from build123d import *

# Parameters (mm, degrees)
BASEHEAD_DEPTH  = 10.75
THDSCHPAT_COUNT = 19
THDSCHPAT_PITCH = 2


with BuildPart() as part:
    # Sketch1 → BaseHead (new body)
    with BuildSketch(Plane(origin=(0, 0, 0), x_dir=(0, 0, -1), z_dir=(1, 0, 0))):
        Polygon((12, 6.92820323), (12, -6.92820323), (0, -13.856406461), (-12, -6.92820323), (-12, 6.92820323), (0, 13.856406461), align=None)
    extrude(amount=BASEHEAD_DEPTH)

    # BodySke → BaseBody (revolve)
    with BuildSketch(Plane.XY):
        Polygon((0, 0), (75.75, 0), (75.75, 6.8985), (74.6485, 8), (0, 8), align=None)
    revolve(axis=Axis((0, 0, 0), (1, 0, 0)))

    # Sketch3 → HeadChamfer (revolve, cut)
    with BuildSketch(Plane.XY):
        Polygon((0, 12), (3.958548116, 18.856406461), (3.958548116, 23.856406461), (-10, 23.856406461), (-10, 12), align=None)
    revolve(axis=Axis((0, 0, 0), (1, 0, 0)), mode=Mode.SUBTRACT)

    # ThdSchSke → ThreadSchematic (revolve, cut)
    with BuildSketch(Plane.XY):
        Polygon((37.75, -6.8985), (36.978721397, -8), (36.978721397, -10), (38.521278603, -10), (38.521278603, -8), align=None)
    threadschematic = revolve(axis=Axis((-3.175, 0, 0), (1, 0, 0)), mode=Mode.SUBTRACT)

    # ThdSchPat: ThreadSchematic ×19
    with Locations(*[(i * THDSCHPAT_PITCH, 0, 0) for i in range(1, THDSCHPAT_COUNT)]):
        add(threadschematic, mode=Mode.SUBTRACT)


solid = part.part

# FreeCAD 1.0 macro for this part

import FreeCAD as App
import Part
import Sketcher
Q = App.Units.Quantity

doc = App.newDocument("Part")
body = doc.addObject("PartDesign::Body", "Body")

# Sketch on YZ plane
sketch1 = body.newObject("Sketcher::SketchObject", "Sketch")
sketch1.AttachmentSupport = (doc.getObject("YZ_Plane"), [""])
sketch1.MapMode = "FlatFace"
sketch1.addGeometry([
    Part.LineSegment(App.Vector(-7, -12, 0), App.Vector(7, -12, 0)),  # 0
    Part.LineSegment(App.Vector(7, -12, 0), App.Vector(14, 0, 0)),  # 1
    Part.LineSegment(App.Vector(14, 0, 0), App.Vector(7, 12, 0)),  # 2
    Part.LineSegment(App.Vector(7, 12, 0), App.Vector(-7, 12, 0)),  # 3
    Part.LineSegment(App.Vector(-7, 12, 0), App.Vector(-14, 0, 0)),  # 4
    Part.LineSegment(App.Vector(-14, 0, 0), App.Vector(-7, -12, 0)),  # 5
], False)
sketch1.addConstraint([
    Sketcher.Constraint("Coincident", 0, 2, 1, 1),
    Sketcher.Constraint("Coincident", 1, 2, 2, 1),
    Sketcher.Constraint("Coincident", 2, 2, 3, 1),
    Sketcher.Constraint("Coincident", 3, 2, 4, 1),
    Sketcher.Constraint("Coincident", 4, 2, 5, 1),
    Sketcher.Constraint("Coincident", 5, 2, 0, 1),
    Sketcher.Constraint("Horizontal", 0),
    Sketcher.Constraint("Horizontal", 3),
    Sketcher.Constraint("Symmetric", 0, 2, 3, 2, -1, 1),
    Sketcher.Constraint("Symmetric", 1, 2, 4, 2, -1, 1),
    Sketcher.Constraint("PointOnObject", 1, 2, -1),
    Sketcher.Constraint("Parallel", 2, 5),
    Sketcher.Constraint("Vertical", 0, 2, 2, 2),
    Sketcher.Constraint("Angle", 1, Q("60 deg")),
    Sketcher.Constraint("DistanceY", 0, 2, -1, 1, Q("12 mm")),
    Sketcher.Constraint("DistanceX", 0, 1, 0, 2, Q("13.856406 mm")),
])
pad1 = body.newObject("PartDesign::Pad", "Pad")
pad1.Profile = sketch1
pad1.Length = 10.75

# Sketch on XY plane
sketch2 = body.newObject("Sketcher::SketchObject", "Sketch001")
sketch2.AttachmentSupport = (doc.getObject("XY_Plane"), [""])
sketch2.MapMode = "FlatFace"
sketch2.addGeometry([
    Part.LineSegment(App.Vector(0, 0, 0), App.Vector(75.8, 0, 0)),  # 0
    Part.LineSegment(App.Vector(75.8, 0, 0), App.Vector(75.8, 6.9, 0)),  # 1
    Part.LineSegment(App.Vector(75.8, 6.9, 0), App.Vector(74.6, 8, 0)),  # 2
    Part.LineSegment(App.Vector(74.6, 8, 0), App.Vector(0, 8, 0)),  # 3
    Part.LineSegment(App.Vector(0, 8, 0), App.Vector(0, 0, 0)),  # 4
], False)
sketch2.addConstraint([
    Sketcher.Constraint("Coincident", 0, 2, 1, 1),
    Sketcher.Constraint("Coincident", 1, 2, 2, 1),
    Sketcher.Constraint("Coincident", 2, 2, 3, 1),
    Sketcher.Constraint("Coincident", 3, 2, 4, 1),
    Sketcher.Constraint("Coincident", 4, 2, 0, 1),
    Sketcher.Constraint("Horizontal", 0),
    Sketcher.Constraint("Vertical", 1),
    Sketcher.Constraint("Horizontal", 3),
    Sketcher.Constraint("Vertical", 4),
    Sketcher.Constraint("Coincident", 4, 2, -1, 1),
    Sketcher.Constraint("DistanceY", 4, 2, 4, 1, Q("8 mm")),
    Sketcher.Constraint("Angle", 2, Q("135 deg")),
    Sketcher.Constraint("DistanceX", 0, 1, 0, 2, Q("75.75 mm")),
    Sketcher.Constraint("DistanceX", 3, 2, 3, 1, Q("74.6485 mm")),
])
revolution = body.newObject("PartDesign::Revolution", "Revolution")
revolution.Profile = sketch2
revolution.ReferenceAxis = (sketch2, ["H_Axis"])
revolution.Angle = 360

# Sketch on XY plane
sketch3 = body.newObject("Sketcher::SketchObject", "Sketch002")
sketch3.AttachmentSupport = (doc.getObject("XY_Plane"), [""])
sketch3.MapMode = "FlatFace"
sketch3.addGeometry([
    Part.LineSegment(App.Vector(0, 12, 0), App.Vector(4, 19, 0)),  # 0
    Part.LineSegment(App.Vector(4, 19, 0), App.Vector(4, 24, 0)),  # 1
    Part.LineSegment(App.Vector(4, 24, 0), App.Vector(-10, 24, 0)),  # 2
    Part.LineSegment(App.Vector(-10, 24, 0), App.Vector(-10, 12, 0)),  # 3
    Part.LineSegment(App.Vector(-10, 12, 0), App.Vector(0, 12, 0)),  # 4
], False)
sketch3.addConstraint([
    Sketcher.Constraint("Coincident", 0, 2, 1, 1),
    Sketcher.Constraint("Coincident", 1, 2, 2, 1),
    Sketcher.Constraint("Coincident", 2, 2, 3, 1),
    Sketcher.Constraint("Coincident", 3, 2, 4, 1),
    Sketcher.Constraint("Coincident", 4, 2, 0, 1),
    Sketcher.Constraint("Vertical", 1),
    Sketcher.Constraint("Horizontal", 2),
    Sketcher.Constraint("Vertical", 3),
    Sketcher.Constraint("Horizontal", 4),
    Sketcher.Constraint("PointOnObject", 4, 2, -2),
    Sketcher.Constraint("DistanceX", 4, 1, 4, 2, Q("10 mm")),
    Sketcher.Constraint("DistanceY", 1, 1, 1, 2, Q("5 mm")),
    Sketcher.Constraint("Angle", 0, Q("60 deg")),
    Sketcher.Constraint("DistanceY", -1, 1, 3, 2, Q("12 mm")),
    Sketcher.Constraint("DistanceX", 2, 2, 2, 1, Q("13.958548 mm")),
])
groove = body.newObject("PartDesign::Groove", "Groove")
groove.Profile = sketch3
groove.ReferenceAxis = (sketch3, ["H_Axis"])
groove.Angle = 360

# Sketch on XY plane
sketch4 = body.newObject("Sketcher::SketchObject", "Sketch003")
sketch4.AttachmentSupport = (doc.getObject("XY_Plane"), [""])
sketch4.MapMode = "FlatFace"
sketch4.addGeometry([
    Part.LineSegment(App.Vector(37.8, -6.9, 0), App.Vector(37, -8, 0)),  # 0
    Part.LineSegment(App.Vector(37, -8, 0), App.Vector(37, -10, 0)),  # 1
    Part.LineSegment(App.Vector(37, -10, 0), App.Vector(38.5, -10, 0)),  # 2
    Part.LineSegment(App.Vector(38.5, -10, 0), App.Vector(38.5, -8, 0)),  # 3
    Part.LineSegment(App.Vector(38.5, -8, 0), App.Vector(37.8, -6.9, 0)),  # 4
], False)
sketch4.addConstraint([
    Sketcher.Constraint("Coincident", 0, 2, 1, 1),
    Sketcher.Constraint("Coincident", 1, 2, 2, 1),
    Sketcher.Constraint("Coincident", 2, 2, 3, 1),
    Sketcher.Constraint("Coincident", 3, 2, 4, 1),
    Sketcher.Constraint("Coincident", 4, 2, 0, 1),
    Sketcher.Constraint("Vertical", 1),
    Sketcher.Constraint("Horizontal", 2),
    Sketcher.Constraint("Vertical", 3),
    Sketcher.Constraint("Horizontal", 0, 2, 3, 2),
    Sketcher.Constraint("Equal", 0, 4),
    Sketcher.Constraint("DistanceY", 1, 2, 1, 1, Q("2 mm")),
    Sketcher.Constraint("Angle", 0, Q("-125 deg")),
    Sketcher.Constraint("DistanceY", 0, 2, -1, 1, Q("8 mm")),
    Sketcher.Constraint("DistanceX", -1, 1, 4, 2, Q("37.75 mm")),
    Sketcher.Constraint("DistanceY", 4, 2, -1, 1, Q("6.8985 mm")),
])
groove2 = body.newObject("PartDesign::Groove", "Groove001")
groove2.Profile = sketch4
groove2.ReferenceAxis = (sketch4, ["H_Axis"])
groove2.Angle = 360
doc.recompute()

linearpattern = body.newObject("PartDesign::LinearPattern", "LinearPattern")
linearpattern.Originals = [groove2]
linearpattern.Direction = (doc.getObject("X_Axis"), [""])
linearpattern.Mode = "offset"
linearpattern.Offset = 2
linearpattern.Occurrences = 19
body.Tip = linearpattern

doc.recompute()
